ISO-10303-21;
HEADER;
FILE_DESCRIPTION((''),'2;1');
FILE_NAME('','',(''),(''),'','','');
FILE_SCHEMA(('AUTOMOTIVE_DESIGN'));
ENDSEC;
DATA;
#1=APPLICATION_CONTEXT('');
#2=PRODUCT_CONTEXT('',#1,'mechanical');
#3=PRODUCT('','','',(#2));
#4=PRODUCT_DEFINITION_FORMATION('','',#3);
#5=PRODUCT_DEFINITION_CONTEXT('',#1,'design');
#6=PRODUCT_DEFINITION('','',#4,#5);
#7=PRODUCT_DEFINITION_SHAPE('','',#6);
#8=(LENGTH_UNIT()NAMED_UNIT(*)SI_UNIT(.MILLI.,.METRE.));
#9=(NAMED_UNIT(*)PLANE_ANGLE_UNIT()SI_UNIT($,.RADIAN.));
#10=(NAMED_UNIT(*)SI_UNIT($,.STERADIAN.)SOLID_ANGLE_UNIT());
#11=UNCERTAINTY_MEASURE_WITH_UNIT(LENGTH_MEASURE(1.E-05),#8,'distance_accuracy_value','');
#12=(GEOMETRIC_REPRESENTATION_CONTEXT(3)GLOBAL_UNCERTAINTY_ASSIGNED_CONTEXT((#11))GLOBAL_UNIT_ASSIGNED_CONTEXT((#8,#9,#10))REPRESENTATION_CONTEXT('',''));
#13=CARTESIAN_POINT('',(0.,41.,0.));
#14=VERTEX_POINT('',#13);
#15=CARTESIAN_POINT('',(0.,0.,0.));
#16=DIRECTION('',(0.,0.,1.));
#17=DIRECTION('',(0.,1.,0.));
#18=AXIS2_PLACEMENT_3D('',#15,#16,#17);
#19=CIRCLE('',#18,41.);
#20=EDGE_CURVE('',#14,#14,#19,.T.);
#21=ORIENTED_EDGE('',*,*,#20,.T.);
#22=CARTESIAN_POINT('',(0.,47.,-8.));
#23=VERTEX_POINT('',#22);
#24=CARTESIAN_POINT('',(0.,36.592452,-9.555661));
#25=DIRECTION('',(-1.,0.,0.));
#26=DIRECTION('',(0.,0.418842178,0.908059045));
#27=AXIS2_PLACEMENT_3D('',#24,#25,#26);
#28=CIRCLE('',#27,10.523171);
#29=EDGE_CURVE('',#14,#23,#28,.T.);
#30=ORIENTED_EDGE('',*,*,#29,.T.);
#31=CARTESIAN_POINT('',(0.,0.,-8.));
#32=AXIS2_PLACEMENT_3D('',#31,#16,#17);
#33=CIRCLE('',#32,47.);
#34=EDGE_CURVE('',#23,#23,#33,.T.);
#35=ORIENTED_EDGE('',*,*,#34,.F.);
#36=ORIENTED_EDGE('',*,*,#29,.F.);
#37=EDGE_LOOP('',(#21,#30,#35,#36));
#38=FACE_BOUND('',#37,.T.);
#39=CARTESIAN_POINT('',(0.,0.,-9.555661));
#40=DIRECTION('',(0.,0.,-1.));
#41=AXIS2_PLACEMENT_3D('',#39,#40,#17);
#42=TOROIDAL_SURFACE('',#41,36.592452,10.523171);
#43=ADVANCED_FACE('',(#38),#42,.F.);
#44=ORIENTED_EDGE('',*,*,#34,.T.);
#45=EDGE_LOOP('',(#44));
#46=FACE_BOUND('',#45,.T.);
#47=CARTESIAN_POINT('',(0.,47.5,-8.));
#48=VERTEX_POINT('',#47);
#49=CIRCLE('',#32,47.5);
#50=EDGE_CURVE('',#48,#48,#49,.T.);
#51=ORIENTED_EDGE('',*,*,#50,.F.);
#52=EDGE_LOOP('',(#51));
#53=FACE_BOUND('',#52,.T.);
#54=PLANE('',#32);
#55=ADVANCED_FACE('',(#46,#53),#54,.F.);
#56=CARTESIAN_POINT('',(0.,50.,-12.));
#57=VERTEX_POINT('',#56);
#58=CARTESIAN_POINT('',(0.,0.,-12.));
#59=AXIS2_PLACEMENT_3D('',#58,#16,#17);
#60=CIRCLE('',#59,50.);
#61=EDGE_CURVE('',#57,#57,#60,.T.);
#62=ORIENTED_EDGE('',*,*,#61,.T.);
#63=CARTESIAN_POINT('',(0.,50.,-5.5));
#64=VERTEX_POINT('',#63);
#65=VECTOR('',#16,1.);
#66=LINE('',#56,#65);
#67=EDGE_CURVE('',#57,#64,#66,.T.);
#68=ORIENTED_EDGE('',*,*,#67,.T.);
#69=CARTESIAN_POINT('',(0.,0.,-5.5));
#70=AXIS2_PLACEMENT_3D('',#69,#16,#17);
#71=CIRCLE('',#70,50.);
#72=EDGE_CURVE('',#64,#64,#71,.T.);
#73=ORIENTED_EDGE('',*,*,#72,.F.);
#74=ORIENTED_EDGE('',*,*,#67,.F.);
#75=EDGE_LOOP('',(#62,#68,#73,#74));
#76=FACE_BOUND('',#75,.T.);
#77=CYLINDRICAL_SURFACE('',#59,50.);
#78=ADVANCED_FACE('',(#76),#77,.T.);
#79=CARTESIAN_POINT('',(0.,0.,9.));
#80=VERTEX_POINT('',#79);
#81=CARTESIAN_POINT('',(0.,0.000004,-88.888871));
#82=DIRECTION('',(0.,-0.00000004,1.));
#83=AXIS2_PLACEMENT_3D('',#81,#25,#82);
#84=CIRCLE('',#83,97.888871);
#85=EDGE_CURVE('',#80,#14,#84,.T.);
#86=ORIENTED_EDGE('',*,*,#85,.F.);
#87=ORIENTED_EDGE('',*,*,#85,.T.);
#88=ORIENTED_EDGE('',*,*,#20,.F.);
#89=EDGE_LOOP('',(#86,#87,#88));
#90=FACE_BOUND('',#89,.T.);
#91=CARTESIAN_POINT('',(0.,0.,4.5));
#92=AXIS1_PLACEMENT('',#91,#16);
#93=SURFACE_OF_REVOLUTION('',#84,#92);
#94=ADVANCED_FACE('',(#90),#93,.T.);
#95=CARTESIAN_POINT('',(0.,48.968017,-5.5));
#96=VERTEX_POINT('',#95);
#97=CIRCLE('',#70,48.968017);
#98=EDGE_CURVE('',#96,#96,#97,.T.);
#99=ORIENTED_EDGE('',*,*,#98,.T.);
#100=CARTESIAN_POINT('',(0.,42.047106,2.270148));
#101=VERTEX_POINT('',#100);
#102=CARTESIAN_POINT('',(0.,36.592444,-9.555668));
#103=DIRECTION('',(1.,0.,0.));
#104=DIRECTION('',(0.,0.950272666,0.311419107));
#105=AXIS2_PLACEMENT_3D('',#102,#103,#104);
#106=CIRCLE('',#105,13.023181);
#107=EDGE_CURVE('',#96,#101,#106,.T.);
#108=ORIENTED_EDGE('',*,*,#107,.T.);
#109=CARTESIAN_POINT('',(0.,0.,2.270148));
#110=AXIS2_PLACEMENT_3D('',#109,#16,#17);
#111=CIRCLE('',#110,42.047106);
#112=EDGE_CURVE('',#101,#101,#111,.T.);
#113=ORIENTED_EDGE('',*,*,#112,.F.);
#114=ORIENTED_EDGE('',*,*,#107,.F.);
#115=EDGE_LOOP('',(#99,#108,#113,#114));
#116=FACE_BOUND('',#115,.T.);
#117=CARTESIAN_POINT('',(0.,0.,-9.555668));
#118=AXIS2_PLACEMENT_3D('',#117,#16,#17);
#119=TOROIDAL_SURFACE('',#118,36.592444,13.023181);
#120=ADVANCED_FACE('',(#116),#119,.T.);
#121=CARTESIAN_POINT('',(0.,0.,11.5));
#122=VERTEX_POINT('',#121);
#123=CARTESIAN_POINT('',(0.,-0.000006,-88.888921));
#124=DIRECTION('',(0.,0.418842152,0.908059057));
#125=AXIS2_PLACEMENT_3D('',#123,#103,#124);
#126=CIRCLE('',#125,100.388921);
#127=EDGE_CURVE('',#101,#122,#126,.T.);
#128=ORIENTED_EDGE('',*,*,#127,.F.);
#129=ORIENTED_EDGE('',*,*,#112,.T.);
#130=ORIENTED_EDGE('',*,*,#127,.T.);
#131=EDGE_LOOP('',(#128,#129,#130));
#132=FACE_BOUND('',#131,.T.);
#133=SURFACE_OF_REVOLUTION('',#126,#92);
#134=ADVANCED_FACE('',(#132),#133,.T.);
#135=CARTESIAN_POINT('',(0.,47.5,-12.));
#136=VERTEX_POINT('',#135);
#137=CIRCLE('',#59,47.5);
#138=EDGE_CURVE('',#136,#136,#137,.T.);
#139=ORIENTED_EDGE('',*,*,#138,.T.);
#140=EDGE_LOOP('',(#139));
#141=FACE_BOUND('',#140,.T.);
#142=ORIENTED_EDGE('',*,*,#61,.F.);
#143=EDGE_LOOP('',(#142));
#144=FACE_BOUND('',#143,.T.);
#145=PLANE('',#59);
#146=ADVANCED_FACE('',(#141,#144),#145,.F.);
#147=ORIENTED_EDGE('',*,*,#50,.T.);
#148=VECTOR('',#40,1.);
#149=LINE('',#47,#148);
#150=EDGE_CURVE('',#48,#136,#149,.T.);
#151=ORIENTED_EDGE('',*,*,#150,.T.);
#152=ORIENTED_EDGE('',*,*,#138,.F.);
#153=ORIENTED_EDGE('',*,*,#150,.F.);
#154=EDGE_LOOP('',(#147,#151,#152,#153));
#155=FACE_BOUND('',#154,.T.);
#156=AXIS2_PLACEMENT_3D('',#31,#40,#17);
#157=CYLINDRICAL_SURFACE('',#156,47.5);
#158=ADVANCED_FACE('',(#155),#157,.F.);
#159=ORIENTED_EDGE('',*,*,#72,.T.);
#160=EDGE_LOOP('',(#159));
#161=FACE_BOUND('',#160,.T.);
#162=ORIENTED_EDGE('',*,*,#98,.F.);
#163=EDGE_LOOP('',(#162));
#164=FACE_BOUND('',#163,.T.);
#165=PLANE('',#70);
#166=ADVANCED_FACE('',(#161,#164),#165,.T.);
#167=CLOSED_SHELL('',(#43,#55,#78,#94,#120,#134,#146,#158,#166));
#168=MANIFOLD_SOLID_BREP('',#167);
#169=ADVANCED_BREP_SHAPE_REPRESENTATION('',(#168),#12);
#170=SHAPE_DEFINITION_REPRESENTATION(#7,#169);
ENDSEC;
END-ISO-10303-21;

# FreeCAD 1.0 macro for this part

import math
import FreeCAD as App
import Part
import Sketcher

V = App.Vector
Q = App.Units.Quantity

doc = App.newDocument("Part")
body = doc.addObject("PartDesign::Body", "Body")

sketch1 = body.newObject("Sketcher::SketchObject", "Sketch")
sketch1.AttachmentSupport = (doc.getObject("YZ_Plane"), [""])
sketch1.MapMode = "FlatFace"
sketch1.addGeometry([
    Part.ArcOfCircle(Part.Circle(V(0, -88.9, 0), V(0, 0, 1), 97.9), math.radians(65), math.radians(90)),
    Part.ArcOfCircle(Part.Circle(V(36.6, -9.6, 0), V(0, 0, 1), 10.5), math.radians(9), math.radians(65)),
    Part.LineSegment(V(47, -8, 0), V(47.5, -8, 0)),
    Part.LineSegment(V(47.5, -8, 0), V(47.5, -12, 0)),
    Part.LineSegment(V(47.5, -12, 0), V(50, -12, 0)),
    Part.LineSegment(V(50, -12, 0), V(50, -5.5, 0)),
    Part.LineSegment(V(50, -5.5, 0), V(49, -5.5, 0)),
    Part.ArcOfCircle(Part.Circle(V(36.6, -9.6, 0), V(0, 0, 1), 13), math.radians(18), math.radians(65)),
    Part.ArcOfCircle(Part.Circle(V(0, -88.9, 0), V(0, 0, 1), 100.4), math.radians(65), math.radians(90)),
    Part.LineSegment(V(0, 11.5, 0), V(0, 9, 0)),
], False)
sketch1.addConstraint([
    Sketcher.Constraint("Tangent", 0, 1, 1, 2),
    Sketcher.Constraint("Coincident", 1, 1, 2, 1),
    Sketcher.Constraint("Coincident", 2, 2, 3, 1),
    Sketcher.Constraint("Coincident", 3, 2, 4, 1),
    Sketcher.Constraint("Coincident", 4, 2, 5, 1),
    Sketcher.Constraint("Coincident", 5, 2, 6, 1),
    Sketcher.Constraint("Coincident", 6, 2, 7, 1),
    Sketcher.Constraint("Tangent", 7, 2, 8, 1),
    Sketcher.Constraint("Coincident", 8, 2, 9, 1),
    Sketcher.Constraint("Coincident", 9, 2, 0, 2),
    Sketcher.Constraint("Horizontal", 2),
    Sketcher.Constraint("Vertical", 3),
    Sketcher.Constraint("Horizontal", 4),
    Sketcher.Constraint("Vertical", 5),
    Sketcher.Constraint("Horizontal", 6),
    Sketcher.Constraint("Vertical", 9),
    Sketcher.Constraint("PointOnObject", 0, 1, -1),
    Sketcher.Constraint("PointOnObject", 8, 2, -2),
    Sketcher.Constraint("Equal", 4, 9),
    Sketcher.Constraint("DistanceY", 3, 2, 3, 1, Q("4 mm")),
    Sketcher.Constraint("DistanceX", 2, 1, 2, 2, Q("0.5 mm")),
    Sketcher.Constraint("DistanceX", 4, 1, 4, 2, Q("2.5 mm")),
    Sketcher.Constraint("DistanceY", 5, 1, 5, 2, Q("6.5 mm")),
    Sketcher.Constraint("DistanceX", -1, 1, 0, 1, Q("41 mm")),
    Sketcher.Constraint("DistanceX", -1, 1, 1, 1, Q("47 mm")),
    Sketcher.Constraint("DistanceY", 1, 1, -1, 1, Q("8 mm")),
    Sketcher.Constraint("DistanceY", -1, 1, 9, 2, Q("9 mm")),
    Sketcher.Constraint("Radius", 0, Q("97.888871 mm")),
    Sketcher.Constraint("Radius", 7, Q("13.023181 mm")),
    Sketcher.Constraint("Radius", 8, Q("100.388921 mm")),
    Sketcher.Constraint("DistanceX", 6, 2, 6, 1, Q("1.031983 mm")),
    Sketcher.Constraint("DistanceY", -1, 1, 7, 2, Q("2.270148 mm")),
])
revolution = body.newObject("PartDesign::Revolution", "Revolution")
revolution.Profile = sketch1
revolution.ReferenceAxis = (sketch1, ["V_Axis"])
revolution.Angle = 360

doc.recompute()
